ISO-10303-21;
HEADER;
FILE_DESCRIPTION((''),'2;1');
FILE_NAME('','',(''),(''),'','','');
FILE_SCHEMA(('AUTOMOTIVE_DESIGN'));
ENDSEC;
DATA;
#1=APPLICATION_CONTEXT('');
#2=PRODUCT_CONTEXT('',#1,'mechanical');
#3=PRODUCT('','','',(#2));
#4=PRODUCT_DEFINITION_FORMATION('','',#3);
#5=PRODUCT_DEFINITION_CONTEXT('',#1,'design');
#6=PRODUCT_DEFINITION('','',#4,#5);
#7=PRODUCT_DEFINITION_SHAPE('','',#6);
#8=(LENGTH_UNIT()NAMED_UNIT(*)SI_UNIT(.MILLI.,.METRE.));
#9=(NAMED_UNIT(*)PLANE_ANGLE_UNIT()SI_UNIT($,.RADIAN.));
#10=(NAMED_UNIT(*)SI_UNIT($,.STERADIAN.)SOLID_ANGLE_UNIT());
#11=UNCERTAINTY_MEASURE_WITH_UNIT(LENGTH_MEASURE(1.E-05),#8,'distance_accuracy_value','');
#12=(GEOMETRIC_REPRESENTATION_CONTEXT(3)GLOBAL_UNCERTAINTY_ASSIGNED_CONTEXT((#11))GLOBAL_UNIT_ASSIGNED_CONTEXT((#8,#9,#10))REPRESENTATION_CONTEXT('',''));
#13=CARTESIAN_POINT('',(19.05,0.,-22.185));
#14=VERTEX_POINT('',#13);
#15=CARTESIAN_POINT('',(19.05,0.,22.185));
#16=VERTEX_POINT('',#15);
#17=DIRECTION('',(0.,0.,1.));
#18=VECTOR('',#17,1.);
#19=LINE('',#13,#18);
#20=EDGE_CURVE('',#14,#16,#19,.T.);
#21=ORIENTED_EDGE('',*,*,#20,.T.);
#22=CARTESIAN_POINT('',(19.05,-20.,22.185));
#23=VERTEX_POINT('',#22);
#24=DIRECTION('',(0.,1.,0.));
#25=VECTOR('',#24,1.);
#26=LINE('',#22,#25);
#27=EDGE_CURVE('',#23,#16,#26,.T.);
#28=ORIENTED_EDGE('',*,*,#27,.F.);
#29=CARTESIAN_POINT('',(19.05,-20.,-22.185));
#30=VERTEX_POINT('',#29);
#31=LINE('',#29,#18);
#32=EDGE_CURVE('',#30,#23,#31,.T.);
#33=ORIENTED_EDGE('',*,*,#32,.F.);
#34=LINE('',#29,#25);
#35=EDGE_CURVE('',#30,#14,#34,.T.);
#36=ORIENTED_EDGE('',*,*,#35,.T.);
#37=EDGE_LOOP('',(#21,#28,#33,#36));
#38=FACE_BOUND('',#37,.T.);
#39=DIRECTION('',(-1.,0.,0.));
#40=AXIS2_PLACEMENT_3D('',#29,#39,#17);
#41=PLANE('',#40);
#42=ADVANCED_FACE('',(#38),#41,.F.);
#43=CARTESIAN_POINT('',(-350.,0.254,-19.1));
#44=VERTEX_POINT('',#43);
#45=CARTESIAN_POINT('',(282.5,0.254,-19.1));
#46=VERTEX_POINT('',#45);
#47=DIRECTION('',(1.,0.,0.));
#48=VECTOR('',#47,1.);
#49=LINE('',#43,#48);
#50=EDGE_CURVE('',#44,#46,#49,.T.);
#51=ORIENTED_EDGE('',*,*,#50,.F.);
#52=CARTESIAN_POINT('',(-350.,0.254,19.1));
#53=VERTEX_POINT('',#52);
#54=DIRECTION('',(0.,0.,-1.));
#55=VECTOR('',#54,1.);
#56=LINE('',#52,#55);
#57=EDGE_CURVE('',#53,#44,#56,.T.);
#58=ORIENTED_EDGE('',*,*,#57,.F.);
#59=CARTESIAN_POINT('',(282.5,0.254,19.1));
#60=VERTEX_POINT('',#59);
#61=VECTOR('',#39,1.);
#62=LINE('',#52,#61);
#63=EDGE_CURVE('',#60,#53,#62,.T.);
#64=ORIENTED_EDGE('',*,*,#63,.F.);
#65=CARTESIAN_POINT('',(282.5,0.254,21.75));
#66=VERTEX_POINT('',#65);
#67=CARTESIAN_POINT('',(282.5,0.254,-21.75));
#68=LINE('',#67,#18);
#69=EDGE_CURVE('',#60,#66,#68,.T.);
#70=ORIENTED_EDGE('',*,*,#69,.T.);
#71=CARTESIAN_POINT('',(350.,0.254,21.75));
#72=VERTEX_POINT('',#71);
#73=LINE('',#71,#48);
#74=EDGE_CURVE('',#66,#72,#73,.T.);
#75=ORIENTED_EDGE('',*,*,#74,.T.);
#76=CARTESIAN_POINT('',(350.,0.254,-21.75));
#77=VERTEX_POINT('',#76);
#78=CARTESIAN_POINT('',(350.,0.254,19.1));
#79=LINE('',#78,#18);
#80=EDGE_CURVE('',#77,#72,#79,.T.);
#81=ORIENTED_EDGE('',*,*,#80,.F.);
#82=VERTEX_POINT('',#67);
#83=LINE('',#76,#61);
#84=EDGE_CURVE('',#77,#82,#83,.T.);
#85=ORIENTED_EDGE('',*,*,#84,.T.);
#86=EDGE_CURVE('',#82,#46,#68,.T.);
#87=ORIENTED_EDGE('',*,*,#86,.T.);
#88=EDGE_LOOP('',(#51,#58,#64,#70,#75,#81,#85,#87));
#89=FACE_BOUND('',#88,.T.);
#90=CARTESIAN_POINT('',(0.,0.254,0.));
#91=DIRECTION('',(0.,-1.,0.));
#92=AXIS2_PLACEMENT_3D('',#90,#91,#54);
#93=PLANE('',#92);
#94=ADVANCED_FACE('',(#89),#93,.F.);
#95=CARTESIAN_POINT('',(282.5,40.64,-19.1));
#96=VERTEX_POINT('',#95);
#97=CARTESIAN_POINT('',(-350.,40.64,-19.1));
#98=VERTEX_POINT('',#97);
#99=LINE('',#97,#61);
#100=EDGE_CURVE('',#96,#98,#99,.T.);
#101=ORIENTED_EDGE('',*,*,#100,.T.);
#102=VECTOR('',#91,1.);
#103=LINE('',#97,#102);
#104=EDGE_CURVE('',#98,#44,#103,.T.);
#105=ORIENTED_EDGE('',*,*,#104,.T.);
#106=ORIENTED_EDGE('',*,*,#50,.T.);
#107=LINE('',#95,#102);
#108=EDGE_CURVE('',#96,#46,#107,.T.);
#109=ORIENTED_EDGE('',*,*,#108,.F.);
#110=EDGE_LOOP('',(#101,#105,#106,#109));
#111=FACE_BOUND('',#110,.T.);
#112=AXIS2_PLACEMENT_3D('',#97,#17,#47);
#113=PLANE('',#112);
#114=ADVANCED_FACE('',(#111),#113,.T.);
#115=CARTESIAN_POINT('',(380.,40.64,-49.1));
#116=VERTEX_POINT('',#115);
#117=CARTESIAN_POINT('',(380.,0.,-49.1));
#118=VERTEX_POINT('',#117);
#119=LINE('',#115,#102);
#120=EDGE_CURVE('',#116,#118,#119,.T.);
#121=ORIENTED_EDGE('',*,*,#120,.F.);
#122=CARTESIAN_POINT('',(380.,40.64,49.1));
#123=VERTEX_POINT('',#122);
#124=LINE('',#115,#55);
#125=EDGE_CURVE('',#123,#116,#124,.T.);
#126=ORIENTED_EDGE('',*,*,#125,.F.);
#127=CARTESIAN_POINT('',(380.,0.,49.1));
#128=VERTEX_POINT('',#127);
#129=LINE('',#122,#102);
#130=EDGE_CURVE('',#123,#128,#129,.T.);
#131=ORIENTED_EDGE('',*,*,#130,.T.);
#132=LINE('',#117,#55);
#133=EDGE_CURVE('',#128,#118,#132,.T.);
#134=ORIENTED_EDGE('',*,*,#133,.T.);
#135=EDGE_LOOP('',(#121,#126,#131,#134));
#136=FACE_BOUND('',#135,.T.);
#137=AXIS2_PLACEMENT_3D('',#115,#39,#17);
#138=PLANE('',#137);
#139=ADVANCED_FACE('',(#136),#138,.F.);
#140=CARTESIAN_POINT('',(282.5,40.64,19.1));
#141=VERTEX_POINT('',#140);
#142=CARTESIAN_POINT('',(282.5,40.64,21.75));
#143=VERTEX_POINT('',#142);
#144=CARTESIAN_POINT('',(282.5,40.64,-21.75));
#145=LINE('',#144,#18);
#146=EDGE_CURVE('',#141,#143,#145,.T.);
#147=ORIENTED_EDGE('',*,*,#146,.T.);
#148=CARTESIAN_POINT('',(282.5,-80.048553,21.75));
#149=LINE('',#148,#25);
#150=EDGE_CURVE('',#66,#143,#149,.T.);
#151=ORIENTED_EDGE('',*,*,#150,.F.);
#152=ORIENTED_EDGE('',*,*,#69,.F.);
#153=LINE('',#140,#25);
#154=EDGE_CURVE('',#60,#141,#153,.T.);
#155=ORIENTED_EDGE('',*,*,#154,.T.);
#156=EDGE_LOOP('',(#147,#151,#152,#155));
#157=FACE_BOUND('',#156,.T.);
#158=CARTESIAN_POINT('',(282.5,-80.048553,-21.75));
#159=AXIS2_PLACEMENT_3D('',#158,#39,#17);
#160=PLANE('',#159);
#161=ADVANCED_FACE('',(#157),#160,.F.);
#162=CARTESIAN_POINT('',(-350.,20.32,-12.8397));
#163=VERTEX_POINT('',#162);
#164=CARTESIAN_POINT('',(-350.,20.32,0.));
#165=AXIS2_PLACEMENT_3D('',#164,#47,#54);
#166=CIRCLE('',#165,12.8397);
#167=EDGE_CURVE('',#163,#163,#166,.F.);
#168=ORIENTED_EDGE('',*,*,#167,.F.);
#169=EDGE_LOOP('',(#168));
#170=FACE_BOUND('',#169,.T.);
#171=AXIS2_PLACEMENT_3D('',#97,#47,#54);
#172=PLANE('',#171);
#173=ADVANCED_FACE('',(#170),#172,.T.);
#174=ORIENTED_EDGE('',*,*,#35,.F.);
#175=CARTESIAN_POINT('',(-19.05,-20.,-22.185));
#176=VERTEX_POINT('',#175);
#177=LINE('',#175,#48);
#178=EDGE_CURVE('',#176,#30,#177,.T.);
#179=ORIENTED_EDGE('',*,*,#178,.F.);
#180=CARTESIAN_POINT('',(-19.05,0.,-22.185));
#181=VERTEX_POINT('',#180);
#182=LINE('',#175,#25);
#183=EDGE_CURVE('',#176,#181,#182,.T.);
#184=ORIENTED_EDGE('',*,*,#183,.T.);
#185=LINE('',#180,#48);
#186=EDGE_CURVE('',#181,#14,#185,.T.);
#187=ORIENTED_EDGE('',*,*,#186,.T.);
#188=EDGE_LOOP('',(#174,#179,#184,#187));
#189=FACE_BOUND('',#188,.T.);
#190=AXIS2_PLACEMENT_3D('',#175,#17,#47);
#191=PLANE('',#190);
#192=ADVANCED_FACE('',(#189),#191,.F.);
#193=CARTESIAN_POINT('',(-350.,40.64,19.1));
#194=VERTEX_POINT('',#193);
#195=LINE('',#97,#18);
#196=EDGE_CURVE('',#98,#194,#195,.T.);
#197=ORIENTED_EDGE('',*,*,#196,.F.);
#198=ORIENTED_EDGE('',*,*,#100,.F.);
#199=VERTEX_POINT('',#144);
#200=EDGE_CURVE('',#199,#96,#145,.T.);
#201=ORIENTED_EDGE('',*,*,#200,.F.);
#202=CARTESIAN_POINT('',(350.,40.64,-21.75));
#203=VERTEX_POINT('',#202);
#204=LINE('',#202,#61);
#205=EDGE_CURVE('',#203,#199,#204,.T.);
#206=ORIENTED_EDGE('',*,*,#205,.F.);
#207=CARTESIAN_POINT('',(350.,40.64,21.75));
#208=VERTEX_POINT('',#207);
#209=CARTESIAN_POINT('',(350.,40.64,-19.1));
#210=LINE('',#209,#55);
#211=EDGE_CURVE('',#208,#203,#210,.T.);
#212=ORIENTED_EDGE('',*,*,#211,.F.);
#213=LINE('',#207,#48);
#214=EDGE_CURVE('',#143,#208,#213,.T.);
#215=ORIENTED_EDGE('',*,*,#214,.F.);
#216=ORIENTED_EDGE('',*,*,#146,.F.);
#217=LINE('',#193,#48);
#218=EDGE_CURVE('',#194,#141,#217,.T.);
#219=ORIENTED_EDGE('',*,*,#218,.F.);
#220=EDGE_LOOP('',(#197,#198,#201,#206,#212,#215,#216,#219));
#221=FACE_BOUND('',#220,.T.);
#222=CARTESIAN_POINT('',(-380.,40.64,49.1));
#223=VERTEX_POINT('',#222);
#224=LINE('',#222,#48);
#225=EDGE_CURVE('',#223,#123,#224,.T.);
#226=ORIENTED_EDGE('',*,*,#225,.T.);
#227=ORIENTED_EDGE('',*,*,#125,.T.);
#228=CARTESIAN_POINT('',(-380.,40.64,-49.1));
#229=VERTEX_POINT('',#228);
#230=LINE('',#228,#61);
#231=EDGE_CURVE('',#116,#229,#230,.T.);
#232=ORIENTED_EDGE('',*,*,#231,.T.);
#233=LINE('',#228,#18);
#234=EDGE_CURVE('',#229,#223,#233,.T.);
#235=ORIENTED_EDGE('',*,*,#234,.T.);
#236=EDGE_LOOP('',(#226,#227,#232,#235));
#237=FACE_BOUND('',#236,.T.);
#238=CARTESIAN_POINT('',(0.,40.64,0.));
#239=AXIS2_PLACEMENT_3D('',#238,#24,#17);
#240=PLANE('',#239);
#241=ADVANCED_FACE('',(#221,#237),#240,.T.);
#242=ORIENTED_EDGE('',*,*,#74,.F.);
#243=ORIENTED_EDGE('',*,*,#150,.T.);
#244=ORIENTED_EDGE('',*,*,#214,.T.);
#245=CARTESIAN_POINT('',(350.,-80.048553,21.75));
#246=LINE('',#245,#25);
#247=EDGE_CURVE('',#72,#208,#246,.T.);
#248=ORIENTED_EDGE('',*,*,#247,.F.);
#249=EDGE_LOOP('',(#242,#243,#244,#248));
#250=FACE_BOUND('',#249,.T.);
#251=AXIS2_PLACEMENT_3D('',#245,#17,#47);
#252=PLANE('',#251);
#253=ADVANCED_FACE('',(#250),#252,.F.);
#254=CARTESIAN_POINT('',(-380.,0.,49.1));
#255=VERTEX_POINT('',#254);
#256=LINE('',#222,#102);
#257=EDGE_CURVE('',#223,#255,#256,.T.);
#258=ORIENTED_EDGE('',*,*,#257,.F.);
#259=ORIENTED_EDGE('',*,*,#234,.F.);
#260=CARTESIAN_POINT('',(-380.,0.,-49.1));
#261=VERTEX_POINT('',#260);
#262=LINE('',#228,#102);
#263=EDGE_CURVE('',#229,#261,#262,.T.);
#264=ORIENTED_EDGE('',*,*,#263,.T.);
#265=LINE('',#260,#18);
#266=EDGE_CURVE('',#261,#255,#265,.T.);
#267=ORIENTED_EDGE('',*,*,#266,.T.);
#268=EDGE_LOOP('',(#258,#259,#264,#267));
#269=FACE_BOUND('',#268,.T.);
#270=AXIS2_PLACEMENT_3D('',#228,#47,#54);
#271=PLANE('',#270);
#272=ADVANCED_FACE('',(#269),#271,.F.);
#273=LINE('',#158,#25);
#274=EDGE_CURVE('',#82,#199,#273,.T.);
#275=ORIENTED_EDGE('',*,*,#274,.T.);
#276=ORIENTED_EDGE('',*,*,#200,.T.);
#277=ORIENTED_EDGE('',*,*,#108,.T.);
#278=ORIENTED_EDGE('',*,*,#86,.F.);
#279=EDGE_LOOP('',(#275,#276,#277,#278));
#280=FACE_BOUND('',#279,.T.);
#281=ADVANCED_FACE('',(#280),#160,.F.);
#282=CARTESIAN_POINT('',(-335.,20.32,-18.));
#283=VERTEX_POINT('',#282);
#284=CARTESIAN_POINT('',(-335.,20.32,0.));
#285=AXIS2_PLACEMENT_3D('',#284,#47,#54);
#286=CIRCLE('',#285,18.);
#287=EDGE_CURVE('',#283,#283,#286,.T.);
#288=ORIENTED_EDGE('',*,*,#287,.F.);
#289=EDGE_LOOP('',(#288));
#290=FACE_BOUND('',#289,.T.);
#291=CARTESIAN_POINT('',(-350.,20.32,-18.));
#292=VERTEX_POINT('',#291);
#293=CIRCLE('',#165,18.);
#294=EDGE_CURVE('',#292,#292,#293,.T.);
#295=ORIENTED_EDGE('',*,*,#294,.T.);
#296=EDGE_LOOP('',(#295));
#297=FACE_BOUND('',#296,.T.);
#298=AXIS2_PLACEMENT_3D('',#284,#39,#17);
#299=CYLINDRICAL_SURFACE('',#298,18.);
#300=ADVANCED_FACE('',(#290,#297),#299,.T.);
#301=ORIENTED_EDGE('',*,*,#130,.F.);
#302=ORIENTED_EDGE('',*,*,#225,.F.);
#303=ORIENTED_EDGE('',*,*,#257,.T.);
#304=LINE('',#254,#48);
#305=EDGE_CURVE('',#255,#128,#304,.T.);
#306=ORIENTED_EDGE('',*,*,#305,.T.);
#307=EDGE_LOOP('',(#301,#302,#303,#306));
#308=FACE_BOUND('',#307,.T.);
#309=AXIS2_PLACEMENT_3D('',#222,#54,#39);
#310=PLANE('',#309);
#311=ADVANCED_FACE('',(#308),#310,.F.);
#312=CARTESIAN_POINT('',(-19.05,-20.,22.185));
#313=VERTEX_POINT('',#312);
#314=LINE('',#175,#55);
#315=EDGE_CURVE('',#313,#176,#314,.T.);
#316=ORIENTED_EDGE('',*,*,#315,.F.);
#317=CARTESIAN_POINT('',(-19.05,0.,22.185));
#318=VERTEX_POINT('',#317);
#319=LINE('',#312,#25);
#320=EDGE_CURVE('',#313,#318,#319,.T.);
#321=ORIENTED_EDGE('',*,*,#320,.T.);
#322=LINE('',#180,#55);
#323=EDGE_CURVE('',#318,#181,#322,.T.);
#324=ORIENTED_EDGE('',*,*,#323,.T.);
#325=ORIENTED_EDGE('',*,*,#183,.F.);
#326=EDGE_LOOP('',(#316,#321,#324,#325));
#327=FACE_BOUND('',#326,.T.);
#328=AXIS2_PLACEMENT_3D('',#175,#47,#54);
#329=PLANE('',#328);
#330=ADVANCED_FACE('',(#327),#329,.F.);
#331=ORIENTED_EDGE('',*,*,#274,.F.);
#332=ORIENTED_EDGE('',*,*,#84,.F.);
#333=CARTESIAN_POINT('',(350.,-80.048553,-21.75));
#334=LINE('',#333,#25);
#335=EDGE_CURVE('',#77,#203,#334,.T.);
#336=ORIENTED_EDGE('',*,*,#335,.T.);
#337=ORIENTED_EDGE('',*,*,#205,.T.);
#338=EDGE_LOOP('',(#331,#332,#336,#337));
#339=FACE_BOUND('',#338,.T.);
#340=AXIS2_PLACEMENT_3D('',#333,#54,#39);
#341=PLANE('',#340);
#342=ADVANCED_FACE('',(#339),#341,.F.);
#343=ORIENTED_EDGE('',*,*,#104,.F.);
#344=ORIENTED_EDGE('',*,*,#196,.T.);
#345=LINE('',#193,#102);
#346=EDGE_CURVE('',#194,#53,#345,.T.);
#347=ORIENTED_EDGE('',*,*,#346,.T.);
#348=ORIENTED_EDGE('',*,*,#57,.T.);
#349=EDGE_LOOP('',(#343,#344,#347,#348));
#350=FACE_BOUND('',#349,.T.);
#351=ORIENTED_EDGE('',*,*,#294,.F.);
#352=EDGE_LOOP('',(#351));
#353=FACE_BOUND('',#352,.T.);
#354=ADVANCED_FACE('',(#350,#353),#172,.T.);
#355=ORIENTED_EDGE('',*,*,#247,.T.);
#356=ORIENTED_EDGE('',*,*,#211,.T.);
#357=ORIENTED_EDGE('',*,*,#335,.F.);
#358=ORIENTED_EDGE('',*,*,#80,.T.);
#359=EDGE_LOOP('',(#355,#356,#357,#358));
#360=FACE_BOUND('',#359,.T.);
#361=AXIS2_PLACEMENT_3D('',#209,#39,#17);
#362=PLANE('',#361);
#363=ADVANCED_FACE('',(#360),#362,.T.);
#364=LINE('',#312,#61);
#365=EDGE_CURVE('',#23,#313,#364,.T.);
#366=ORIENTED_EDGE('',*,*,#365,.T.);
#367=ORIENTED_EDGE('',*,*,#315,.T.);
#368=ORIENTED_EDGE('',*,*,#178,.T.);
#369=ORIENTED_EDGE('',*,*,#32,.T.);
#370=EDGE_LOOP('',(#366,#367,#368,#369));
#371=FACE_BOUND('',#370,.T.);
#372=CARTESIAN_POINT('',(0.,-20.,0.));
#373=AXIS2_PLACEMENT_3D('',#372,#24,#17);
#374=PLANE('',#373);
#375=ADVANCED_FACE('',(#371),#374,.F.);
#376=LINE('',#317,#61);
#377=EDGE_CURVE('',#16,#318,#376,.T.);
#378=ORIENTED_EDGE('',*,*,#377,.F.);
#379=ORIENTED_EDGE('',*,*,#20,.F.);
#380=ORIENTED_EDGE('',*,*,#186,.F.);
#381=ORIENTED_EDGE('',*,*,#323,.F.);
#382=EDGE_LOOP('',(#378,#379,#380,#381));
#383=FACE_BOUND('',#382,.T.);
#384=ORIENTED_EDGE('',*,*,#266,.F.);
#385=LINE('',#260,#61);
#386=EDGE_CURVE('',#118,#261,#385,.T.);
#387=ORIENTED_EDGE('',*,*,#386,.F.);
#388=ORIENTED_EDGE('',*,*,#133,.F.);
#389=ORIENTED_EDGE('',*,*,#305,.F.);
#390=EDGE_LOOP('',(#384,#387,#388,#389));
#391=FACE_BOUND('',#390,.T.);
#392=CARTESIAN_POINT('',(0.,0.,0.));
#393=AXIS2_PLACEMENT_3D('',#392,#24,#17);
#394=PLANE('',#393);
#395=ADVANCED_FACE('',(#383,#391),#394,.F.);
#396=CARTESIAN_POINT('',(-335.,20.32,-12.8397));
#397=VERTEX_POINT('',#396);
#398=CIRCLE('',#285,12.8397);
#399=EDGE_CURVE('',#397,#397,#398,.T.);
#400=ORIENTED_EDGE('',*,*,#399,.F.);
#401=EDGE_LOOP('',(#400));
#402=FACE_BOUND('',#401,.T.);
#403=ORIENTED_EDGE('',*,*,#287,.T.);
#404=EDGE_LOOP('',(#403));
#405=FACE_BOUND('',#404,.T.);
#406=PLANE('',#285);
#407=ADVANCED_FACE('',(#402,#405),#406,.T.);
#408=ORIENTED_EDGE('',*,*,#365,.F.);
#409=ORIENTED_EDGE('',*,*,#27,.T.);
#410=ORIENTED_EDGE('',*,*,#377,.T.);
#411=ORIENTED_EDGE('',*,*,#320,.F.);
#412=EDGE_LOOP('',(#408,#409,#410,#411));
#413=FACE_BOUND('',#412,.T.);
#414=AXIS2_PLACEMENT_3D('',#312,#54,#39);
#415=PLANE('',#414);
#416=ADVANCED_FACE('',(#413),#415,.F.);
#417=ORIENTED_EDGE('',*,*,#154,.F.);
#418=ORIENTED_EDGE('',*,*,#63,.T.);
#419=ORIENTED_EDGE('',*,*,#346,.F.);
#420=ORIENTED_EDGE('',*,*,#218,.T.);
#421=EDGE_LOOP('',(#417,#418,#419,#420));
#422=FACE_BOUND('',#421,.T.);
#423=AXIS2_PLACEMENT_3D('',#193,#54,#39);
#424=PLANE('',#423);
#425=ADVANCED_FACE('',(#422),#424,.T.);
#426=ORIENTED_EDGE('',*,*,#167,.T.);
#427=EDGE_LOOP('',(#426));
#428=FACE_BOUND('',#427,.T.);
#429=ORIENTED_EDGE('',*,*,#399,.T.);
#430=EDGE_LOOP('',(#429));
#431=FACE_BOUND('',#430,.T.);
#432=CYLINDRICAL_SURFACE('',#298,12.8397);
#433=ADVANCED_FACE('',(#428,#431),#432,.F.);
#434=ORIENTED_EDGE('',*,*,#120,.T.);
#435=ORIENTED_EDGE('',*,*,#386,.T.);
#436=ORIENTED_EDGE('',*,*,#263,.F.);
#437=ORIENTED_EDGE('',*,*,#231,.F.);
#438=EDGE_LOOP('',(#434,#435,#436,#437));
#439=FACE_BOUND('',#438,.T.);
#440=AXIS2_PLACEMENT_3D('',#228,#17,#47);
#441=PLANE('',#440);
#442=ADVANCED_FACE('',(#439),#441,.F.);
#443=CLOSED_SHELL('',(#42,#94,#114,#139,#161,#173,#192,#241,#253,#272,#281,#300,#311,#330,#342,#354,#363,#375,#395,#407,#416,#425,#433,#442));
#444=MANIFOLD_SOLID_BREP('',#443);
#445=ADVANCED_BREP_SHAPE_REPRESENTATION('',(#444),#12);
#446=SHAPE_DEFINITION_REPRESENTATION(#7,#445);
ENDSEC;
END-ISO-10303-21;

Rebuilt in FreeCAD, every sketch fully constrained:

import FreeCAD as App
import Part
import Sketcher
from FreeCAD import Vector
Q = App.Units.Quantity


def add_polygon(sketch, points):
    """Adds a closed chain of lines whose ends are joined by coincident constraints."""
    first, n = sketch.GeometryCount, len(points)
    for a, b in zip(points, points[1:] + points[:1]):
        sketch.addGeometry(Part.LineSegment(App.Vector(*a, 0), App.Vector(*b, 0)), False)
    for i in range(n):
        sketch.addConstraint(Sketcher.Constraint("Coincident", first + i, 2, first + (i + 1) % n, 1))

doc = App.newDocument("Part")
params = doc.addObject("Spreadsheet::Sheet", "Params")
for row, (alias, value) in enumerate([
    ("sketch1_width", "760 mm"),
    ("sketch1_width2", "700 mm"),
    ("sketch1_height", "98.2 mm"),
    ("sketch1_height2", "38.2 mm"),
    ("pad1_length", "40.64 mm"),
    ("sketch2_width", "700 mm"),
    ("sketch2_height", "38.2 mm"),
    ("pad2_length", "0.254 mm"),
    ("sketch3_width", "67.5 mm"),
    ("sketch3_height", "43.5 mm"),
    ("pocket1_length", "40.386 mm"),
    ("sketch4_diameter", "36 mm"),
    ("pad3_length", "15 mm"),
    ("sketch5_width", "38.1 mm"),
    ("sketch5_height", "44.37 mm"),
    ("pad4_length", "20 mm"),
], start=1):
    params.set(f"A{row}", alias)
    params.set(f"B{row}", "=" + value)
    params.setAlias(f"B{row}", alias)

body = doc.addObject("PartDesign::Body", "Body")

# Sketch on XZ plane
sketch1 = body.newObject("Sketcher::SketchObject", "Sketch")
sketch1.AttachmentSupport = (doc.getObject("XZ_Plane"), [""])
sketch1.MapMode = "FlatFace"
add_polygon(sketch1, [(-380, -49), (-380, 49), (380, 49), (380, -49)])  # lines 0-3
add_polygon(sketch1, [(350, 19), (-350, 19), (-350, -19), (350, -19)])  # lines 4-7
sketch1.addConstraint([
    Sketcher.Constraint("Vertical", 0),
    Sketcher.Constraint("Horizontal", 1),
    Sketcher.Constraint("Vertical", 2),
    Sketcher.Constraint("Horizontal", 3),
    Sketcher.Constraint("Horizontal", 4),
    Sketcher.Constraint("Vertical", 5),
    Sketcher.Constraint("Horizontal", 6),
    Sketcher.Constraint("Vertical", 7),
    Sketcher.Constraint("Symmetric", 0, 2, 2, 2, -1, 1),
    Sketcher.Constraint("Symmetric", 4, 2, 6, 2, -1, 1),
    Sketcher.Constraint("DistanceX", 1, 1, 1, 2, Q("760 mm")),
    Sketcher.Constraint("DistanceX", 4, 2, 4, 1, Q("700 mm")),
    Sketcher.Constraint("DistanceY", 0, 1, 0, 2, Q("98.2 mm")),
    Sketcher.Constraint("DistanceY", 5, 2, 5, 1, Q("38.2 mm")),
])
sketch1.setExpression("Constraints[18]", "Params.sketch1_width")
sketch1.setExpression("Constraints[19]", "Params.sketch1_width2")
sketch1.setExpression("Constraints[20]", "Params.sketch1_height")
sketch1.setExpression("Constraints[21]", "Params.sketch1_height2")
pad1 = body.newObject("PartDesign::Pad", "Pad")
pad1.Profile = sketch1
pad1.setExpression("Length", "Params.pad1_length")
pad1.Reversed = True

# Sketch on XZ plane
sketch2 = body.newObject("Sketcher::SketchObject", "Sketch001")
sketch2.AttachmentSupport = (doc.getObject("XZ_Plane"), [""])
sketch2.MapMode = "FlatFace"
add_polygon(sketch2, [(-350, 19), (-350, -19), (350, -19), (350, 19)])  # lines 0-3
sketch2.addConstraint([
    Sketcher.Constraint("Vertical", 0),
    Sketcher.Constraint("Horizontal", 1),
    Sketcher.Constraint("Vertical", 2),
    Sketcher.Constraint("Horizontal", 3),
    Sketcher.Constraint("Symmetric", 0, 2, 2, 2, -1, 1),
    Sketcher.Constraint("DistanceX", 1, 1, 1, 2, Q("700 mm")),
    Sketcher.Constraint("DistanceY", 0, 2, 0, 1, Q("38.2 mm")),
])
sketch2.setExpression("Constraints[9]", "Params.sketch2_width")
sketch2.setExpression("Constraints[10]", "Params.sketch2_height")
pad2 = body.newObject("PartDesign::Pad", "Pad001")
pad2.Profile = sketch2
pad2.setExpression("Length", "Params.pad2_length")
pad2.Reversed = True

# Sketch on XZ plane
sketch3 = body.newObject("Sketcher::SketchObject", "Sketch002")
sketch3.AttachmentSupport = (doc.getObject("XZ_Plane"), [""])
sketch3.MapMode = "FlatFace"
sketch3.AttachmentOffset = App.Placement(Vector(0, 0, -40.64), App.Rotation())
add_polygon(sketch3, [(282, -22), (282, 22), (350, 22), (350, -22)])  # lines 0-3
sketch3.addConstraint([
    Sketcher.Constraint("Vertical", 0),
    Sketcher.Constraint("Horizontal", 1),
    Sketcher.Constraint("Vertical", 2),
    Sketcher.Constraint("Horizontal", 3),
    Sketcher.Constraint("DistanceX", 1, 1, 1, 2, Q("67.5 mm")),
    Sketcher.Constraint("DistanceY", 0, 1, 0, 2, Q("43.5 mm")),
    Sketcher.Constraint("DistanceX", -1, 1, 1, 2, Q("350 mm")),
    Sketcher.Constraint("DistanceY", -1, 1, 0, 2, Q("21.75 mm")),
])
sketch3.setExpression("Constraints[8]", "Params.sketch3_width")
sketch3.setExpression("Constraints[9]", "Params.sketch3_height")
pocket1 = body.newObject("PartDesign::Pocket", "Pocket")
pocket1.Profile = sketch3
pocket1.setExpression("Length", "Params.pocket1_length")
pocket1.Reversed = True

# Sketch on YZ plane
sketch4 = body.newObject("Sketcher::SketchObject", "Sketch003")
sketch4.AttachmentSupport = (doc.getObject("YZ_Plane"), [""])
sketch4.MapMode = "FlatFace"
sketch4.AttachmentOffset = App.Placement(Vector(0, 0, -350), App.Rotation())
sketch4.addGeometry([
    Part.Circle(Vector(20, 0, 0), Vector(0, 0, 1), 18),
    Part.Circle(Vector(20, 0, 0), Vector(0, 0, 1), 13),
], False)
sketch4.addConstraint([
    Sketcher.Constraint("Coincident", 1, 3, 0, 3),
    Sketcher.Constraint("PointOnObject", 0, 3, -1),
    Sketcher.Constraint("Diameter", 0, Q("36 mm")),
    Sketcher.Constraint("Diameter", 1, Q("25.6794 mm")),
    Sketcher.Constraint("DistanceX", -1, 1, 0, 3, Q("20.32 mm")),
])
sketch4.setExpression("Constraints[2]", "Params.sketch4_diameter")
pad3 = body.newObject("PartDesign::Pad", "Pad002")
pad3.Profile = sketch4
pad3.setExpression("Length", "Params.pad3_length")

# Sketch on XZ plane
sketch5 = body.newObject("Sketcher::SketchObject", "Sketch004")
sketch5.AttachmentSupport = (doc.getObject("XZ_Plane"), [""])
sketch5.MapMode = "FlatFace"
add_polygon(sketch5, [(-19, 22), (-19, -22), (19, -22), (19, 22)])  # lines 0-3
sketch5.addConstraint([
    Sketcher.Constraint("Vertical", 0),
    Sketcher.Constraint("Horizontal", 1),
    Sketcher.Constraint("Vertical", 2),
    Sketcher.Constraint("Horizontal", 3),
    Sketcher.Constraint("Symmetric", 0, 2, 2, 2, -1, 1),
    Sketcher.Constraint("DistanceX", 1, 1, 1, 2, Q("38.1 mm")),
    Sketcher.Constraint("DistanceY", 0, 2, 0, 1, Q("44.37 mm")),
])
sketch5.setExpression("Constraints[9]", "Params.sketch5_width")
sketch5.setExpression("Constraints[10]", "Params.sketch5_height")
pad4 = body.newObject("PartDesign::Pad", "Pad003")
pad4.Profile = sketch5
pad4.setExpression("Length", "Params.pad4_length")

doc.recompute()
